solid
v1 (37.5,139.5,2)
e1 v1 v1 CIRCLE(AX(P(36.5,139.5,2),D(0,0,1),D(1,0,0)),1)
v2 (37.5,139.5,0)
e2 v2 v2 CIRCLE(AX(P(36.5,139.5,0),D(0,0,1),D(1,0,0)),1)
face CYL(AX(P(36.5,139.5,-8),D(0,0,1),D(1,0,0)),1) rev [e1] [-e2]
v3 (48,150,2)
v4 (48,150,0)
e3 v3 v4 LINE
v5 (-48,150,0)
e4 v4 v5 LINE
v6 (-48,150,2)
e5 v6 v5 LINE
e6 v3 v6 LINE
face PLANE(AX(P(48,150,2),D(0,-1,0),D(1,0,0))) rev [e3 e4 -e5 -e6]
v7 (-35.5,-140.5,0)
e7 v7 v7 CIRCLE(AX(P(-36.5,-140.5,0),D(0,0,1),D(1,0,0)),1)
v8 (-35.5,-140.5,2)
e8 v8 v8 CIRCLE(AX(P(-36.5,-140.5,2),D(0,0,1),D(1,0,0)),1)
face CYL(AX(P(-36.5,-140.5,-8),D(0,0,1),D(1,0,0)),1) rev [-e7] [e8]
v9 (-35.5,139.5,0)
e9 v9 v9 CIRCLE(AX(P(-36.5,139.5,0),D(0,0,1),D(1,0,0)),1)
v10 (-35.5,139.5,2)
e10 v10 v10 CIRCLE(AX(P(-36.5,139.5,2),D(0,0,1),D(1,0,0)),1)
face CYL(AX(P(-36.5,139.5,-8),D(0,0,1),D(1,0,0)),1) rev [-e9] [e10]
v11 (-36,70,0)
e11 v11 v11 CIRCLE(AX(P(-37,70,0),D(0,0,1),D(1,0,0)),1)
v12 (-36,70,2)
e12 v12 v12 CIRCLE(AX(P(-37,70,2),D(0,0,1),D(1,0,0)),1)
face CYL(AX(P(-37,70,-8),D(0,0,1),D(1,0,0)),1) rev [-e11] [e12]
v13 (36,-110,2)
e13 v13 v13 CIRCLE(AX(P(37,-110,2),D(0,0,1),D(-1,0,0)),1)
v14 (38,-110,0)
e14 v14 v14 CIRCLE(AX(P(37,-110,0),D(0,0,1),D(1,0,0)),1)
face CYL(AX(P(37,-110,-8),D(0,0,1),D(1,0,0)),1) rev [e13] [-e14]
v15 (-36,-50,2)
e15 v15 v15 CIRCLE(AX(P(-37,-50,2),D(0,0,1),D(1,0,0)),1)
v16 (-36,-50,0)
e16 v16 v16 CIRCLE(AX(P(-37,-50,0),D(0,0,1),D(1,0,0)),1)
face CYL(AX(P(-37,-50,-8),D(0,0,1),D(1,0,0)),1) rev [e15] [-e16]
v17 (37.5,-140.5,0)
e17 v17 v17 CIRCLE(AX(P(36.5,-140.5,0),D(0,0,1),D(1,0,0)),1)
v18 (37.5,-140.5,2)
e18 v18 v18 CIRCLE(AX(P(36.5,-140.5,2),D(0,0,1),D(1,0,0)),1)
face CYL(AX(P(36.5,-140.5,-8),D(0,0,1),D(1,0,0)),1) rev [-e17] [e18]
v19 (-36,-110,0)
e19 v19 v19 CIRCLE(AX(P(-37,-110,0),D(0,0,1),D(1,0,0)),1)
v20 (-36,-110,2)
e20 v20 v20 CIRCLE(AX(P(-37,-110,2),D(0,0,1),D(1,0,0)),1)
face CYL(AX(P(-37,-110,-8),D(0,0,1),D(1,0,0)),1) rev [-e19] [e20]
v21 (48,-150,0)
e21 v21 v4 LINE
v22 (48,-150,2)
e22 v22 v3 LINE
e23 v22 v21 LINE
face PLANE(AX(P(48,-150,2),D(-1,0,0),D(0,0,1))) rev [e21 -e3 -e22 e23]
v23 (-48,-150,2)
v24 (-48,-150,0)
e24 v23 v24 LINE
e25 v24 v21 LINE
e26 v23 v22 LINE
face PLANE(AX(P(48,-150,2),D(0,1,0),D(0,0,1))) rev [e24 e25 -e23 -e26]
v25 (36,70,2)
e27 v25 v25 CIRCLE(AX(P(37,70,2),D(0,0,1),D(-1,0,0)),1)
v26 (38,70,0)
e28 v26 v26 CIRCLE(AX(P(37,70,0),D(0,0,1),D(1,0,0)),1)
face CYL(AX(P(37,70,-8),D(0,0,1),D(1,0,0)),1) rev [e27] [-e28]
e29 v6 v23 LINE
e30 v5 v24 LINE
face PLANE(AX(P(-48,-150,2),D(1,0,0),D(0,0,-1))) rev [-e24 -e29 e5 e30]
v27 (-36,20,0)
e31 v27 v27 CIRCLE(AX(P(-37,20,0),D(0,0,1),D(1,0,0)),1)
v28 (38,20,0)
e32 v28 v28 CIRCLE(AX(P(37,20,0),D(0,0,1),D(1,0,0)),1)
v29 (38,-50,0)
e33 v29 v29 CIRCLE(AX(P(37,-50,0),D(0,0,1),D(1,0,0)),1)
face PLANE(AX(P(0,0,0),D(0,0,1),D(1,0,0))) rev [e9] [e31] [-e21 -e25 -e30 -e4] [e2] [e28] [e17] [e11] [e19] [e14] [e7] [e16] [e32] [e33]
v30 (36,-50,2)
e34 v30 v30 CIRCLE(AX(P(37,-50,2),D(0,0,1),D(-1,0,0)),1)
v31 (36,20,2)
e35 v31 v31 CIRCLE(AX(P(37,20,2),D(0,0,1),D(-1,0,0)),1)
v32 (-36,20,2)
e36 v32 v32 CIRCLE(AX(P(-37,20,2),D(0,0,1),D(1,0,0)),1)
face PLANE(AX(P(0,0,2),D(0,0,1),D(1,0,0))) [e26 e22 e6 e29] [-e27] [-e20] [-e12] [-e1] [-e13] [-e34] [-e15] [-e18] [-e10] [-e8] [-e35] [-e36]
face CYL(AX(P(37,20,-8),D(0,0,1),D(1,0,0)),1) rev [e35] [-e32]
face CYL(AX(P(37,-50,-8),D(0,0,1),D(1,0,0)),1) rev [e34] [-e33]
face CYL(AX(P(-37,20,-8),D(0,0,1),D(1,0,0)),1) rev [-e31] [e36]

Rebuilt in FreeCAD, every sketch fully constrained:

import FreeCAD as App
import Part
import Sketcher
from FreeCAD import Vector
Q = App.Units.Quantity

doc = App.newDocument("Part")
body = doc.addObject("PartDesign::Body", "Body")

# Sketch on XY plane
sketch1 = body.newObject("Sketcher::SketchObject", "Sketch")
sketch1.AttachmentSupport = (doc.getObject("XY_Plane"), [""])
sketch1.MapMode = "FlatFace"
sketch1.addGeometry([
    Part.LineSegment(Vector(-48, 150, 0), Vector(-48, -150, 0)),
    Part.LineSegment(Vector(-48, -150, 0), Vector(48, -150, 0)),
    Part.LineSegment(Vector(48, -150, 0), Vector(48, 150, 0)),
    Part.LineSegment(Vector(48, 150, 0), Vector(-48, 150, 0)),
], False)
sketch1.addConstraint([
    Sketcher.Constraint("Coincident", 0, 2, 1, 1),
    Sketcher.Constraint("Coincident", 1, 2, 2, 1),
    Sketcher.Constraint("Coincident", 2, 2, 3, 1),
    Sketcher.Constraint("Coincident", 3, 2, 0, 1),
    Sketcher.Constraint("Vertical", 0),
    Sketcher.Constraint("Horizontal", 1),
    Sketcher.Constraint("Vertical", 2),
    Sketcher.Constraint("Horizontal", 3),
    Sketcher.Constraint("Symmetric", 0, 2, 2, 2, -1, 1),
    Sketcher.Constraint("DistanceX", 1, 1, 1, 2, Q("96 mm")),
    Sketcher.Constraint("DistanceY", 0, 2, 0, 1, Q("300 mm")),
])
pad1 = body.newObject("PartDesign::Pad", "Pad")
pad1.Profile = sketch1
pad1.Length = 2

# Sketch on XY plane
sketch2 = body.newObject("Sketcher::SketchObject", "Sketch001")
sketch2.AttachmentSupport = (doc.getObject("XY_Plane"), [""])
sketch2.MapMode = "FlatFace"
sketch2.AttachmentOffset = App.Placement(Vector(0, 0, 2), App.Rotation())
sketch2.addGeometry([
    Part.Circle(Vector(-37, 70, 0), Vector(0, 0, 1), 1),  # 0
    Part.Circle(Vector(-37, 20, 0), Vector(0, 0, 1), 1),  # 1
    Part.Circle(Vector(-37, -110, 0), Vector(0, 0, 1), 1),  # 2
    Part.Circle(Vector(-37, -50, 0), Vector(0, 0, 1), 1),  # 3
    Part.Circle(Vector(37, 70, 0), Vector(0, 0, 1), 1),  # 4
    Part.Circle(Vector(37, 20, 0), Vector(0, 0, 1), 1),  # 5
    Part.Circle(Vector(37, -50, 0), Vector(0, 0, 1), 1),  # 6
    Part.Circle(Vector(37, -110, 0), Vector(0, 0, 1), 1),  # 7
], False)
sketch2.addConstraint([
    Sketcher.Constraint("Equal", 0, 1),
    Sketcher.Constraint("Equal", 1, 2),
    Sketcher.Constraint("Equal", 2, 3),
    Sketcher.Constraint("Equal", 3, 4),
    Sketcher.Constraint("Equal", 4, 5),
    Sketcher.Constraint("Equal", 5, 6),
    Sketcher.Constraint("Equal", 6, 7),
    Sketcher.Constraint("Symmetric", 0, 3, 4, 3, -2),
    Sketcher.Constraint("Symmetric", 1, 3, 5, 3, -2),
    Sketcher.Constraint("Symmetric", 3, 3, 6, 3, -2),
    Sketcher.Constraint("Symmetric", 2, 3, 7, 3, -2),
    Sketcher.Constraint("Vertical", 0, 3, 1, 3),
    Sketcher.Constraint("Vertical", 1, 3, 2, 3),
    Sketcher.Constraint("Vertical", 2, 3, 3, 3),
    Sketcher.Constraint("Diameter", 0, Q("2 mm")),
    Sketcher.Constraint("DistanceX", 0, 3, -1, 1, Q("37 mm")),
    Sketcher.Constraint("DistanceY", -1, 1, 0, 3, Q("70 mm")),
    Sketcher.Constraint("DistanceY", -1, 1, 1, 3, Q("20 mm")),
    Sketcher.Constraint("DistanceY", 2, 3, -1, 1, Q("110 mm")),
    Sketcher.Constraint("DistanceY", 3, 3, -1, 1, Q("50 mm")),
])
pocket1 = body.newObject("PartDesign::Pocket", "Pocket")
pocket1.Profile = sketch2
pocket1.Length = 10

# Sketch on XY plane
sketch3 = body.newObject("Sketcher::SketchObject", "Sketch002")
sketch3.AttachmentSupport = (doc.getObject("XY_Plane"), [""])
sketch3.MapMode = "FlatFace"
sketch3.AttachmentOffset = App.Placement(Vector(0, 0, 2), App.Rotation())
sketch3.addGeometry([
    Part.Circle(Vector(-36.5, 139.5, 0), Vector(0, 0, 1), 1),
    Part.Circle(Vector(36.5, 139.5, 0), Vector(0, 0, 1), 1),
    Part.Circle(Vector(-36.5, -140.5, 0), Vector(0, 0, 1), 1),
    Part.Circle(Vector(36.5, -140.5, 0), Vector(0, 0, 1), 1),
], False)
sketch3.addConstraint([
    Sketcher.Constraint("Equal", 0, 1),
    Sketcher.Constraint("Equal", 1, 2),
    Sketcher.Constraint("Equal", 2, 3),
    Sketcher.Constraint("Symmetric", 0, 3, 1, 3, -2),
    Sketcher.Constraint("Symmetric", 2, 3, 3, 3, -2),
    Sketcher.Constraint("Vertical", 0, 3, 2, 3),
    Sketcher.Constraint("Diameter", 0, Q("2 mm")),
    Sketcher.Constraint("DistanceX", 0, 3, 1, 3, Q("73 mm")),
    Sketcher.Constraint("DistanceY", 2, 3, 0, 3, Q("280 mm")),
    Sketcher.Constraint("DistanceY", -1, 1, 0, 3, Q("139.5 mm")),
])
pocket2 = body.newObject("PartDesign::Pocket", "Pocket001")
pocket2.Profile = sketch3
pocket2.Length = 10

doc.recompute()
